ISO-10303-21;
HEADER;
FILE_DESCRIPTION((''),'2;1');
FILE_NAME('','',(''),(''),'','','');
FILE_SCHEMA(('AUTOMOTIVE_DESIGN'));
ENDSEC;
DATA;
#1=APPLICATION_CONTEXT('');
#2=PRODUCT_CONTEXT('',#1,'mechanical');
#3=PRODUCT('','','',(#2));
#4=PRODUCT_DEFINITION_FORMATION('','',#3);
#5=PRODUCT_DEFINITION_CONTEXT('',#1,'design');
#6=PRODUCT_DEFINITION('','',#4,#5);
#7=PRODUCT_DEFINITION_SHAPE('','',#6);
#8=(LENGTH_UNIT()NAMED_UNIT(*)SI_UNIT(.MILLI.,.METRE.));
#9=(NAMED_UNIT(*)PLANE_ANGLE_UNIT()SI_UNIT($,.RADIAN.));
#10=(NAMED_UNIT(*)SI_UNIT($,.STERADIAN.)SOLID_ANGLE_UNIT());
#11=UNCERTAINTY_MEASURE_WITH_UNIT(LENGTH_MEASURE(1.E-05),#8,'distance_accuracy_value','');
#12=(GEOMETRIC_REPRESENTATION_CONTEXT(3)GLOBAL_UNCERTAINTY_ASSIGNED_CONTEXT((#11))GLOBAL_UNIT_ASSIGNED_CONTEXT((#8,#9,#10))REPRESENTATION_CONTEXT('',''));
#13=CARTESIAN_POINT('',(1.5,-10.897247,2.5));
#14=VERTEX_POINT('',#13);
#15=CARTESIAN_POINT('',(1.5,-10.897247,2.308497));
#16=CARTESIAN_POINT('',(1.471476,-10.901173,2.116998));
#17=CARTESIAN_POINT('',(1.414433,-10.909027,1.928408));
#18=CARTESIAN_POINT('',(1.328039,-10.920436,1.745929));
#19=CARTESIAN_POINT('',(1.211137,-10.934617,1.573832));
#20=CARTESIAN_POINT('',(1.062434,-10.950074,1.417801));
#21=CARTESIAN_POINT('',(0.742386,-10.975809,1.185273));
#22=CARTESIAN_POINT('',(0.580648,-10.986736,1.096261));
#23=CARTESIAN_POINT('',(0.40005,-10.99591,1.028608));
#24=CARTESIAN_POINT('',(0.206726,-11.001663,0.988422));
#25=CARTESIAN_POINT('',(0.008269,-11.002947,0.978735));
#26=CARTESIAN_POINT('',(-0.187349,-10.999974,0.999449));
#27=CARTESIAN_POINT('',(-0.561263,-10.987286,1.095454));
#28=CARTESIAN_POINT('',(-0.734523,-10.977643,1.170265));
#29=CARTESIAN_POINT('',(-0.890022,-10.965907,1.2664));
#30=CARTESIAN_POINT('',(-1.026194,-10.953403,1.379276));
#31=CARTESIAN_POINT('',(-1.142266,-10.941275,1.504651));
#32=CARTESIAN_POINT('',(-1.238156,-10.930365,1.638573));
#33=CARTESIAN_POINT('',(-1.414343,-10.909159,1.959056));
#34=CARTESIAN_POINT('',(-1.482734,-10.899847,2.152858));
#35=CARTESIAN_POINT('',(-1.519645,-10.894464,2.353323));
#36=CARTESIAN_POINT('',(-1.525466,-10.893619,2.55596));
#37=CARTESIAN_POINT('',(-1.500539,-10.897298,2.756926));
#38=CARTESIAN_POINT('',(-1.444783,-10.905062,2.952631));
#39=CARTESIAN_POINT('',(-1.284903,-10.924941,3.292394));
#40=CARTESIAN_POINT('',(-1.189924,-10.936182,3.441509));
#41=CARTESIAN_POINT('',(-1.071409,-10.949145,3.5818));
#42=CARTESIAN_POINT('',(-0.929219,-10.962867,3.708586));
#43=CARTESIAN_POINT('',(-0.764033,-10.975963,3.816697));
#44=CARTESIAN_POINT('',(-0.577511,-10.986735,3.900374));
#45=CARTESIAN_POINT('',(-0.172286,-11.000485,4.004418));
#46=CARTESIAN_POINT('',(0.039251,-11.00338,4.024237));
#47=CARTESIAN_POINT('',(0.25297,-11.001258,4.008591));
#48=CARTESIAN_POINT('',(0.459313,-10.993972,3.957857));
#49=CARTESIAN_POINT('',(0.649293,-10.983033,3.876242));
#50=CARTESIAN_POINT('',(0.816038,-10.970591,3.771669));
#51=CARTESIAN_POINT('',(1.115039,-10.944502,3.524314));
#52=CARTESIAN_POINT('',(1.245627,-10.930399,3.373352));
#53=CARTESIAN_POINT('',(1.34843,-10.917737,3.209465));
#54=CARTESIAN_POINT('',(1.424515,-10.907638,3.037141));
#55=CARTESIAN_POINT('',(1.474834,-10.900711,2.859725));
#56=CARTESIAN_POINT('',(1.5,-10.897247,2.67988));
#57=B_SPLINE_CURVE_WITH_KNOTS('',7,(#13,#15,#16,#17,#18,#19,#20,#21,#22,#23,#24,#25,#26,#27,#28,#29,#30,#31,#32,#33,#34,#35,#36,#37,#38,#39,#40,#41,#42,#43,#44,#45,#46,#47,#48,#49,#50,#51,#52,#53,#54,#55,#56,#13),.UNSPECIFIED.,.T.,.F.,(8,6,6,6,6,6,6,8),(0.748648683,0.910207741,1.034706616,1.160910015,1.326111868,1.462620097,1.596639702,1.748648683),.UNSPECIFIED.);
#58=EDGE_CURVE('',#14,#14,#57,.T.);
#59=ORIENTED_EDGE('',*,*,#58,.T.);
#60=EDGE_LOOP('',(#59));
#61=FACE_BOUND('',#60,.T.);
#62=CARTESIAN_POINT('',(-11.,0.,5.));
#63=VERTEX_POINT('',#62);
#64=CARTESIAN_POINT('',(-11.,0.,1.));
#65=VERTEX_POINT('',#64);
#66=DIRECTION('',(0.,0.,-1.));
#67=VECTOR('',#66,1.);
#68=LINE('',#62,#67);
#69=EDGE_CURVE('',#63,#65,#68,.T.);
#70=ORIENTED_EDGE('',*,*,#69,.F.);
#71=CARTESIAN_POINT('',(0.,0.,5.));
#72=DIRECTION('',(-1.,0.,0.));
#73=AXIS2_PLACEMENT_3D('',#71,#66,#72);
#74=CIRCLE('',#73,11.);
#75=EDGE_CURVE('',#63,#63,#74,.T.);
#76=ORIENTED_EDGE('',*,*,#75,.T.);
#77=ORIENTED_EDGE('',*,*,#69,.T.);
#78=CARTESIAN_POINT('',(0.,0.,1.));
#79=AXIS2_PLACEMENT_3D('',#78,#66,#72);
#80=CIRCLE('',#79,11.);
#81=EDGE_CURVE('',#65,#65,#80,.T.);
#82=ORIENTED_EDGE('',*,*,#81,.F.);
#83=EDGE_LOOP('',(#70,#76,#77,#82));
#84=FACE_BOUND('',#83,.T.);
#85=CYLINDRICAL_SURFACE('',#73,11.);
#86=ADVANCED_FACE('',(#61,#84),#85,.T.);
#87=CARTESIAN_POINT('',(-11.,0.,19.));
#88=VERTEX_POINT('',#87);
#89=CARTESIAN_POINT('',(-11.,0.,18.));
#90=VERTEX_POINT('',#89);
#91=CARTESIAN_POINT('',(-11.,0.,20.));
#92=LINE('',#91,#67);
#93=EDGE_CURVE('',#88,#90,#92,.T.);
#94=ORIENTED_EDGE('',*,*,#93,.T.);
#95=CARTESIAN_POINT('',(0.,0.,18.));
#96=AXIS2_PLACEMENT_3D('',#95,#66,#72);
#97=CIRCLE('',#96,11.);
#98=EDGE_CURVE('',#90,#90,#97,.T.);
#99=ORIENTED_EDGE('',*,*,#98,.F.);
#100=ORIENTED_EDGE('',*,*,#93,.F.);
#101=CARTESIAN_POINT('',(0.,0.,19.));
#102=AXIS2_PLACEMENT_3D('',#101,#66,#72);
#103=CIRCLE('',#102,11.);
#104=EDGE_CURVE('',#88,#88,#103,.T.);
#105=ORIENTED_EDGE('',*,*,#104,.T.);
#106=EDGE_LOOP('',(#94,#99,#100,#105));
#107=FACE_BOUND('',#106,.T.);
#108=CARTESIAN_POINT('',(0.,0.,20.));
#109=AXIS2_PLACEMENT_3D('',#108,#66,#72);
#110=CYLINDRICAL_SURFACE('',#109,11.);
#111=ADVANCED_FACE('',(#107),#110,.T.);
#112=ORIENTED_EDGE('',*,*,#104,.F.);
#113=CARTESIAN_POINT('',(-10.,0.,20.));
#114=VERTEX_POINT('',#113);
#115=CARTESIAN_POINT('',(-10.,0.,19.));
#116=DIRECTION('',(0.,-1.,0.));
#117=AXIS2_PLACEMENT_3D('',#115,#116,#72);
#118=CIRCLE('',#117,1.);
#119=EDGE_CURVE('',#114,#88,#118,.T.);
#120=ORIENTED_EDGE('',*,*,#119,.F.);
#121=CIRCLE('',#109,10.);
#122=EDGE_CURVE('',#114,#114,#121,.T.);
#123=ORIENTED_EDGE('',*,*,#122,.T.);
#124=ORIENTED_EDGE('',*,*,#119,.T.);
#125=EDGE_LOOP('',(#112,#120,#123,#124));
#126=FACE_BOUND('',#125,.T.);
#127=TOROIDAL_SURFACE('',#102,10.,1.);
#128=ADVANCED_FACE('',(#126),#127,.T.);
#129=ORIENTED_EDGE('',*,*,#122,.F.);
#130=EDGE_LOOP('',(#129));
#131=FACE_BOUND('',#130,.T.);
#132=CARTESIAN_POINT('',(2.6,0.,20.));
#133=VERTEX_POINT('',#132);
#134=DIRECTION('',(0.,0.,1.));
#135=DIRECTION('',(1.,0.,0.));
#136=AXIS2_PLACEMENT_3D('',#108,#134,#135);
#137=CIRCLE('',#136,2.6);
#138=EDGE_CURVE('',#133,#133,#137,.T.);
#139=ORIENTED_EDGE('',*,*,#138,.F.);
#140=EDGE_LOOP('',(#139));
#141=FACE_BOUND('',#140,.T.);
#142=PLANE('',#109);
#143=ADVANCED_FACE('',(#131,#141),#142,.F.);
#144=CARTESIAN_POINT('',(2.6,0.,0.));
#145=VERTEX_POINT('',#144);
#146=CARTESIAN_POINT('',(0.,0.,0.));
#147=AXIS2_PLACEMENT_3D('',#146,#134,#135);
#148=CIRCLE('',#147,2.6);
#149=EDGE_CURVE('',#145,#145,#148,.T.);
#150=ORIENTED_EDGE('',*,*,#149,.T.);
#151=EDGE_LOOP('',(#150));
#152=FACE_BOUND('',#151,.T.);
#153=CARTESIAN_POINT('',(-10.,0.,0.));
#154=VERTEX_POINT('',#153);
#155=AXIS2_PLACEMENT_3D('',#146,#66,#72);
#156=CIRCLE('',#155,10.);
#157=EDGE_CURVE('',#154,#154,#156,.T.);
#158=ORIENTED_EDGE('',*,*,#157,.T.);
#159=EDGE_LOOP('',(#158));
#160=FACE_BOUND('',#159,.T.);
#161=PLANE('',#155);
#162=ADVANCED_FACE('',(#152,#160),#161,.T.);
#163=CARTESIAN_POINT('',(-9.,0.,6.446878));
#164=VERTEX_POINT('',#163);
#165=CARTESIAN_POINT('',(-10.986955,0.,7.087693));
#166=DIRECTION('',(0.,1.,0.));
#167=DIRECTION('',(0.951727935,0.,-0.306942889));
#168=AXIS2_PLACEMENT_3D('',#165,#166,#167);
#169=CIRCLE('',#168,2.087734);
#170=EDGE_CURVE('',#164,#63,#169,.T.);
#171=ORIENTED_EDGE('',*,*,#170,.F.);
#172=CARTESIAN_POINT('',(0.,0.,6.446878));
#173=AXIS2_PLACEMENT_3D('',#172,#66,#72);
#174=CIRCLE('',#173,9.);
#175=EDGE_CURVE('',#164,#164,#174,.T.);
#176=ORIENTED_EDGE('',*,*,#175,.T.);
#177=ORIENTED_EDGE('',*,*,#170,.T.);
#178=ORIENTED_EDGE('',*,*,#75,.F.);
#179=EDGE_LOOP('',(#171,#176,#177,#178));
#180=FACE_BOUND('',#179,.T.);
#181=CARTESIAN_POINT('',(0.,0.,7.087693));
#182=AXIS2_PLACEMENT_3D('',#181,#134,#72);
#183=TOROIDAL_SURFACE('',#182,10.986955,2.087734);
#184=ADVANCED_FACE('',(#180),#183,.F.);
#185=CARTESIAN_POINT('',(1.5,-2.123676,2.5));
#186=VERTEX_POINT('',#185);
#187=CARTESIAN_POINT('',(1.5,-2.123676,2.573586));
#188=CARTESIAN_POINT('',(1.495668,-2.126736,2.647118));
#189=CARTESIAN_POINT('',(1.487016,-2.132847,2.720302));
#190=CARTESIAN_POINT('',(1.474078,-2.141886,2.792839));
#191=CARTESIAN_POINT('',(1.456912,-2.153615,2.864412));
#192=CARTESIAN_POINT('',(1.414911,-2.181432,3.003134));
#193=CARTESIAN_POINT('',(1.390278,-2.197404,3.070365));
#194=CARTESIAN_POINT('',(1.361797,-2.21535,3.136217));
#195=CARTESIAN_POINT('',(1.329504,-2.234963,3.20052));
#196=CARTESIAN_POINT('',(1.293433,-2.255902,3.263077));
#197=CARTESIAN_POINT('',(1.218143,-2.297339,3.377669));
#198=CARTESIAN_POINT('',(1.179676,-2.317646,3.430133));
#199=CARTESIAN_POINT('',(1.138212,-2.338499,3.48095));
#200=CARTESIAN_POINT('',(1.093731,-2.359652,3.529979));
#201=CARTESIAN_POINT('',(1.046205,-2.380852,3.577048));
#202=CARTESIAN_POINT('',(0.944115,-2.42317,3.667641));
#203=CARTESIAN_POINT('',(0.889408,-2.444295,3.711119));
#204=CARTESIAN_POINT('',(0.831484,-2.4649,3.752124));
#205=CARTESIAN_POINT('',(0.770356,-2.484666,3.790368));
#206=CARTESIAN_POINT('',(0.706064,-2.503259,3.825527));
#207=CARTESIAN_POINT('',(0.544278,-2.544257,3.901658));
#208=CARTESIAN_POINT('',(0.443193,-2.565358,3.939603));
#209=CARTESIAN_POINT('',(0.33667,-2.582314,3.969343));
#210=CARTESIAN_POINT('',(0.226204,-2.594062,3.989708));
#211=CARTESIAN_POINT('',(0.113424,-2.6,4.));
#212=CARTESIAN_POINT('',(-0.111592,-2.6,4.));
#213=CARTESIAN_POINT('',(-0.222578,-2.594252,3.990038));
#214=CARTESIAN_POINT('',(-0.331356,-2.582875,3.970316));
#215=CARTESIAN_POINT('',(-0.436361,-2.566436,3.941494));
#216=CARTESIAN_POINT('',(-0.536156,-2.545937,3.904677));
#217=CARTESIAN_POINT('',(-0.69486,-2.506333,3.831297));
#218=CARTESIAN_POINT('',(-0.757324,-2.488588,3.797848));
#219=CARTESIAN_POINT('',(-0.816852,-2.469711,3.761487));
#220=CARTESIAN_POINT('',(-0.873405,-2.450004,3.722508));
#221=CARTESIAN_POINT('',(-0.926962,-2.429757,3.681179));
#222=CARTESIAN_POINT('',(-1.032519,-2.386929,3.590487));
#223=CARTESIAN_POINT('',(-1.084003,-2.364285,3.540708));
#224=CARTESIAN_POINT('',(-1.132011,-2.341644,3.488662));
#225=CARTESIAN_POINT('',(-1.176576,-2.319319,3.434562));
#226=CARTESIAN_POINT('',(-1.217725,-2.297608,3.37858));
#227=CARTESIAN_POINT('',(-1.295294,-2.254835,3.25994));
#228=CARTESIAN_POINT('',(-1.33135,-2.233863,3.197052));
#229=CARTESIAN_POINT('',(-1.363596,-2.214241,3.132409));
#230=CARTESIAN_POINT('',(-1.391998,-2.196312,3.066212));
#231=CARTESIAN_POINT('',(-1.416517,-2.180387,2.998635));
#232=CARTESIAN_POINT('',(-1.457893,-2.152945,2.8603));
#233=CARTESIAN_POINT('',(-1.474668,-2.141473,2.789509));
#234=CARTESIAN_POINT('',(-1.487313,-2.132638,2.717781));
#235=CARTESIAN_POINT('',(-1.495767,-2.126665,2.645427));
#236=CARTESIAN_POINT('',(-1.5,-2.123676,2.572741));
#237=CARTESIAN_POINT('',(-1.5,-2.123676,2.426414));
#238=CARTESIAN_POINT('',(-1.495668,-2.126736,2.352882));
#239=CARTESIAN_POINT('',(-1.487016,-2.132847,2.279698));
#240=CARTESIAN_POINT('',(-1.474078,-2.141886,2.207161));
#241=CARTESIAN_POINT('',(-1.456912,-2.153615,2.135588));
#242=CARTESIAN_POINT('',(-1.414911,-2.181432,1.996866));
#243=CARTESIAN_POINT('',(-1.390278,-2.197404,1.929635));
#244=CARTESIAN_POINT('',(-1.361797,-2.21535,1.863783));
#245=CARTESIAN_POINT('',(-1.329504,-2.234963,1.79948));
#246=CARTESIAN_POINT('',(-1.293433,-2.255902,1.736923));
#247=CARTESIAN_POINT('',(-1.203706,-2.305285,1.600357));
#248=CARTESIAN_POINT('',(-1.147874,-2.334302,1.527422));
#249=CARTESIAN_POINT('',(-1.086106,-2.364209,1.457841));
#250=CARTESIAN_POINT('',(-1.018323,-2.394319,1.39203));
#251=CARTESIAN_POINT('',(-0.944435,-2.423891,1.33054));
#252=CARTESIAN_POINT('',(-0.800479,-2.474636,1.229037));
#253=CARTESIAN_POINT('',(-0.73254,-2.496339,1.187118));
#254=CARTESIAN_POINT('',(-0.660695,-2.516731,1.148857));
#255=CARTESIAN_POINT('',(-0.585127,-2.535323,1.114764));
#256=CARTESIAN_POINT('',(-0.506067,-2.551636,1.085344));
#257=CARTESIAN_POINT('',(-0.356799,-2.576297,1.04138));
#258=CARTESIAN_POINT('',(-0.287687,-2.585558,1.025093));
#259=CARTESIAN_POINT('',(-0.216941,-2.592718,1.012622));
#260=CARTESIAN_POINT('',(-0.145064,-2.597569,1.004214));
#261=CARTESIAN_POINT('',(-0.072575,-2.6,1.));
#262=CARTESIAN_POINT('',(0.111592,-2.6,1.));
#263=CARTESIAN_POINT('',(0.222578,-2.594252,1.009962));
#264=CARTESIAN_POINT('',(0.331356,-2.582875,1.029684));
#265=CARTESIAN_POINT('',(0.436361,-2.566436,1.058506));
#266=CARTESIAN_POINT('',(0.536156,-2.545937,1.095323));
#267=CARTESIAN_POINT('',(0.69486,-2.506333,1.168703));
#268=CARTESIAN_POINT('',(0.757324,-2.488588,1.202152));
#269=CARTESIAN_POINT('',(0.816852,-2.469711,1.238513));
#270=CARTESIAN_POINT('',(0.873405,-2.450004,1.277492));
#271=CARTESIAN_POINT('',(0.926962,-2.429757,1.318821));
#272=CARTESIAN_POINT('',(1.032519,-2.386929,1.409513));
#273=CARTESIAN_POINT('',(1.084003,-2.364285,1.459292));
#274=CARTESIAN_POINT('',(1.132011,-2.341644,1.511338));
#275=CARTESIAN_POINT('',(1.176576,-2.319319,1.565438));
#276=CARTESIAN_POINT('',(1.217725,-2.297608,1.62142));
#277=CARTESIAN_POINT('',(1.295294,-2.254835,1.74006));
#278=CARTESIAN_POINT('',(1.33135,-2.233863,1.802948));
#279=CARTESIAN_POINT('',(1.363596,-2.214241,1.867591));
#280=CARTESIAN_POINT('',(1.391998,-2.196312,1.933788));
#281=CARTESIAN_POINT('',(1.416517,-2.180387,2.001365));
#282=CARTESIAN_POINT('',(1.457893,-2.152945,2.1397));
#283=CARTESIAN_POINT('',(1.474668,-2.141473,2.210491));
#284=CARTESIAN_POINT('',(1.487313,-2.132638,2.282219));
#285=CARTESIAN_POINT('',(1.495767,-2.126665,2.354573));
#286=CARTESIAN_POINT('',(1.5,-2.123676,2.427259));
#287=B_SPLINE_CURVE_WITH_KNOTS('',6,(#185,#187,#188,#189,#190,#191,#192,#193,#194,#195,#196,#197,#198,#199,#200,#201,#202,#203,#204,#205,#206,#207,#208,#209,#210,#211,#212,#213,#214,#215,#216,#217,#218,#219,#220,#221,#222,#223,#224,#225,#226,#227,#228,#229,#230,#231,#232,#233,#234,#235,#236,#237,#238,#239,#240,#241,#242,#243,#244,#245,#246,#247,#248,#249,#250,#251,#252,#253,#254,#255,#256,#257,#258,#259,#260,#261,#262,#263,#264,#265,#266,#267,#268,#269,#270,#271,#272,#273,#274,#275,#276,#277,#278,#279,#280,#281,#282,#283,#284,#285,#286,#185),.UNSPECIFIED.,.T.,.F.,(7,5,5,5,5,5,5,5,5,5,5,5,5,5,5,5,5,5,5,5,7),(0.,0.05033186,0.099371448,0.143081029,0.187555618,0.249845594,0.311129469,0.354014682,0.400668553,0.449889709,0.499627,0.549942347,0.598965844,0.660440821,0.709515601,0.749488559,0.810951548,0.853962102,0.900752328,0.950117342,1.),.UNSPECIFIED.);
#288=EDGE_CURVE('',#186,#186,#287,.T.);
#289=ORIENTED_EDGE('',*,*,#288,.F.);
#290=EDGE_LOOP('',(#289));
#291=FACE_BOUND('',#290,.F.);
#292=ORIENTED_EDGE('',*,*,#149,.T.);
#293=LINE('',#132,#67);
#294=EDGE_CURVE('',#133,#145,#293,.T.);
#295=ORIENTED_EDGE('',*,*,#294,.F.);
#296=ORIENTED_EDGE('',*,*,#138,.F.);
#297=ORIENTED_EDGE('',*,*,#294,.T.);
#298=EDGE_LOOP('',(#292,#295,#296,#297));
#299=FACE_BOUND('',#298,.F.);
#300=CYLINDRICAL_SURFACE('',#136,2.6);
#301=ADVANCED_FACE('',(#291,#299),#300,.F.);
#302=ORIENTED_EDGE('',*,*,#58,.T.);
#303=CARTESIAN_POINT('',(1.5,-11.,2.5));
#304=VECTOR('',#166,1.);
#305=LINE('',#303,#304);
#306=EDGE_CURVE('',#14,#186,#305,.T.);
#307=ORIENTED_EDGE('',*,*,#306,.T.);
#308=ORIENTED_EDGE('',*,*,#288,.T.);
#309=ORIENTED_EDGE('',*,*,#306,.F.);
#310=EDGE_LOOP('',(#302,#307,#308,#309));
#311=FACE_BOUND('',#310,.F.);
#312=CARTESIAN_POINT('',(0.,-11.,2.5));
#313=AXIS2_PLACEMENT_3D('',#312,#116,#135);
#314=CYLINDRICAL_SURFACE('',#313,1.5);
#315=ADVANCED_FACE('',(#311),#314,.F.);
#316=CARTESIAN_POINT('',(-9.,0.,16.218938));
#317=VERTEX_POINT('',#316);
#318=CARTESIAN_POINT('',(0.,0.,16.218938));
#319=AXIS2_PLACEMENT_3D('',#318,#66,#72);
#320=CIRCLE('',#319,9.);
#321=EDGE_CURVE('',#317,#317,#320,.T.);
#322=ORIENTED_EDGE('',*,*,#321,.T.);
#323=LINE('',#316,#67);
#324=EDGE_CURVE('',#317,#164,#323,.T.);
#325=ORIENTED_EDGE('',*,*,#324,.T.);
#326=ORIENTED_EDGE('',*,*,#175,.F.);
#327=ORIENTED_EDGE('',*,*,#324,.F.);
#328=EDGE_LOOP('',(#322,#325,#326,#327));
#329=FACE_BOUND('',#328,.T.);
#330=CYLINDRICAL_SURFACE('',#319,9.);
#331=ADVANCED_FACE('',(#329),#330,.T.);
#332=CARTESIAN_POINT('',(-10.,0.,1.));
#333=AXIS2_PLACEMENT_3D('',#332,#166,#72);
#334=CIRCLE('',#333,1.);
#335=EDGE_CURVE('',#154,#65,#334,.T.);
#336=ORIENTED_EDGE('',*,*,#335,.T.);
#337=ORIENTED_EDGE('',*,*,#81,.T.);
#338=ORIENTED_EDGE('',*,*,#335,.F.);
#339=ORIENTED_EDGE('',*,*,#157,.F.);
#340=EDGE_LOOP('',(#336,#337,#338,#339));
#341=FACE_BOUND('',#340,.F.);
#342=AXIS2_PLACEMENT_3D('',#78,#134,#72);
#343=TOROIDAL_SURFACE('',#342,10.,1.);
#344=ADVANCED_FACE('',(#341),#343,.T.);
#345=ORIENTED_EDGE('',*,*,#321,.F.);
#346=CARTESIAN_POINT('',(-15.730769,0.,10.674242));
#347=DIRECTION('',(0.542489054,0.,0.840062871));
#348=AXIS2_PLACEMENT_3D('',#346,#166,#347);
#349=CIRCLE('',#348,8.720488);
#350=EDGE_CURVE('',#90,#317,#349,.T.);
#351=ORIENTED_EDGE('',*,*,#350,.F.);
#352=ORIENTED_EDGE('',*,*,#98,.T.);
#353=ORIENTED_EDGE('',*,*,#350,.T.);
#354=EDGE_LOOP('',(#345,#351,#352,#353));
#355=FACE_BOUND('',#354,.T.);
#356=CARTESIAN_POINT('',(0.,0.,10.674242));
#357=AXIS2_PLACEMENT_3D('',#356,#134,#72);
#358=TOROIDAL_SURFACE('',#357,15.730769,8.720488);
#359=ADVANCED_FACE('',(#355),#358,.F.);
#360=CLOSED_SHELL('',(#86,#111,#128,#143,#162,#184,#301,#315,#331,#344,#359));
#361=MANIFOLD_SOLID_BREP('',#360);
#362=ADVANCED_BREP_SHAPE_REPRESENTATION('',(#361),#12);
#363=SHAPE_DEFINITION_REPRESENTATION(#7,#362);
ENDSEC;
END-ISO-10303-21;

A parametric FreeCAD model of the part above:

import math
import FreeCAD as App
import Part
import Sketcher

V = App.Vector


def edges_at(feature, points):
    """Names of the edges that pass closest to the given points."""
    edges = feature.Shape.Edges
    near = lambda p: min(range(len(edges)), key=lambda i: edges[i].distToShape(Part.Vertex(*p))[0])
    return sorted({f"Edge{near(p) + 1}" for p in points})

doc = App.newDocument("Part")
params = doc.addObject("Spreadsheet::Sheet", "Params")
for row, (alias, value) in enumerate([
    ("sketch1_width", "11 mm"),
    ("sketch1_height", "20 mm"),
    ("sketch1_height2", "2 mm"),
    ("sketch1_height3", "5 mm"),
    ("revolution_angle", "360 deg"),
    ("sketch2_diameter", "5.2 mm"),
    ("pocket1_length", "20 mm"),
    ("sketch3_diameter", "3 mm"),
    ("pocket2_length", "10 mm"),
    ("fillet_radius", "1 mm"),
], start=1):
    params.set(f"A{row}", alias)
    params.set(f"B{row}", "=" + value)
    params.setAlias(f"B{row}", alias)

body = doc.addObject("PartDesign::Body", "Body")

# Sketch on XZ plane
sketch1 = body.newObject("Sketcher::SketchObject", "Sketch")
sketch1.AttachmentSupport = (doc.getObject("XZ_Plane"), [""])
sketch1.MapMode = "FlatFace"
sketch1.addGeometry(Part.LineSegment(V(-11, 0, 0), V(0, 0, 0)), False)
sketch1.addGeometry(Part.LineSegment(V(0, 0, 0), V(0, 20, 0)), False)
sketch1.addGeometry(Part.LineSegment(V(0, 20, 0), V(-11, 20, 0)), False)
sketch1.addGeometry(Part.LineSegment(V(-11, 20, 0), V(-11, 18, 0)), False)
sketch1.addGeometry(Part.ArcOfCircle(Part.Circle(V(-15.7, 10.7, 0), V(0, 0, 1), 8.7), math.radians(39.48), math.radians(57.15)), False)
sketch1.addGeometry(Part.LineSegment(V(-9, 16.2, 0), V(-9, 6.4, 0)), False)
sketch1.addGeometry(Part.ArcOfCircle(Part.Circle(V(-11, 7.1, 0), V(0, 0, 1), 2.1), math.radians(-90), math.radians(-18)), False)
sketch1.addGeometry(Part.LineSegment(V(-11, 5, 0), V(-11, 0, 0)), False)
sketch1.addConstraint(Sketcher.Constraint("Coincident", 0, 2, 1, 1))
sketch1.addConstraint(Sketcher.Constraint("Coincident", 1, 2, 2, 1))
sketch1.addConstraint(Sketcher.Constraint("Coincident", 2, 2, 3, 1))
sketch1.addConstraint(Sketcher.Constraint("Coincident", 3, 2, 4, 2))
sketch1.addConstraint(Sketcher.Constraint("Coincident", 4, 1, 5, 1))
sketch1.addConstraint(Sketcher.Constraint("Coincident", 5, 2, 6, 2))
sketch1.addConstraint(Sketcher.Constraint("Coincident", 6, 1, 7, 1))
sketch1.addConstraint(Sketcher.Constraint("Coincident", 7, 2, 0, 1))
sketch1.addConstraint(Sketcher.Constraint("Horizontal", 0))
sketch1.addConstraint(Sketcher.Constraint("Vertical", 1))
sketch1.addConstraint(Sketcher.Constraint("Horizontal", 2))
sketch1.addConstraint(Sketcher.Constraint("Vertical", 3))
sketch1.addConstraint(Sketcher.Constraint("Vertical", 5))
sketch1.addConstraint(Sketcher.Constraint("Vertical", 7))
sketch1.addConstraint(Sketcher.Constraint("Coincident", 0, 2, -1, 1))
sketch1.addConstraint(Sketcher.Constraint("Vertical", 3, 2, 6, 1))
sketch1.addConstraint(Sketcher.Constraint("DistanceX", 0, 1, 0, 2, 11.0))
sketch1.addConstraint(Sketcher.Constraint("DistanceY", 1, 1, 1, 2, 20.0))
sketch1.addConstraint(Sketcher.Constraint("DistanceY", 3, 2, 3, 1, 2.0))
sketch1.addConstraint(Sketcher.Constraint("DistanceY", 7, 2, 7, 1, 5.0))
sketch1.addConstraint(Sketcher.Constraint("DistanceX", 4, 1, -1, 1, 9.0))
sketch1.addConstraint(Sketcher.Constraint("Radius", 4, 8.720488))
sketch1.addConstraint(Sketcher.Constraint("Radius", 6, 2.087734))
sketch1.addConstraint(Sketcher.Constraint("DistanceY", 5, 2, 5, 1, 9.77206))
sketch1.addConstraint(Sketcher.Constraint("DistanceX", 4, 3, -1, 1, 15.730769))
sketch1.setExpression("Constraints[16]", "Params.sketch1_width")
sketch1.setExpression("Constraints[17]", "Params.sketch1_height")
sketch1.setExpression("Constraints[18]", "Params.sketch1_height2")
sketch1.setExpression("Constraints[19]", "Params.sketch1_height3")
revolution = body.newObject("PartDesign::Revolution", "Revolution")
revolution.Profile = sketch1
revolution.ReferenceAxis = (sketch1, ["V_Axis"])
revolution.setExpression("Angle", "Params.revolution_angle")

# Sketch on XY plane
sketch2 = body.newObject("Sketcher::SketchObject", "Sketch001")
sketch2.AttachmentSupport = (doc.getObject("XY_Plane"), [""])
sketch2.MapMode = "FlatFace"
sketch2.AttachmentOffset = App.Placement(V(0, 0, 20), App.Rotation())
sketch2.addGeometry(Part.Circle(V(0, 0, 0), V(0, 0, 1), 2.6), False)
sketch2.addConstraint(Sketcher.Constraint("Coincident", 0, 3, -1, 1))
sketch2.addConstraint(Sketcher.Constraint("Diameter", 0, 5.2))
sketch2.setExpression("Constraints[1]", "Params.sketch2_diameter")
pocket1 = body.newObject("PartDesign::Pocket", "Pocket")
pocket1.Profile = sketch2
pocket1.setExpression("Length", "Params.pocket1_length")

# Sketch on XZ plane
sketch3 = body.newObject("Sketcher::SketchObject", "Sketch002")
sketch3.AttachmentSupport = (doc.getObject("XZ_Plane"), [""])
sketch3.MapMode = "FlatFace"
sketch3.AttachmentOffset = App.Placement(V(0, 0, 11), App.Rotation())
sketch3.addGeometry(Part.Circle(V(0, 2.5, 0), V(0, 0, 1), 1.5), False)
sketch3.addConstraint(Sketcher.Constraint("PointOnObject", 0, 3, -2))
sketch3.addConstraint(Sketcher.Constraint("Diameter", 0, 3.0))
sketch3.addConstraint(Sketcher.Constraint("DistanceY", -1, 1, 0, 3, 2.5))
sketch3.setExpression("Constraints[1]", "Params.sketch3_diameter")
pocket2 = body.newObject("PartDesign::Pocket", "Pocket001")
pocket2.Profile = sketch3
pocket2.setExpression("Length", "Params.pocket2_length")
doc.recompute()

fillet = body.newObject("PartDesign::Fillet", "Fillet")
fillet.Base = (pocket2, edges_at(pocket2, [(11, 0, 20), (11, 0, 0)]))
fillet.setExpression("Radius", "Params.fillet_radius")

doc.recompute()
